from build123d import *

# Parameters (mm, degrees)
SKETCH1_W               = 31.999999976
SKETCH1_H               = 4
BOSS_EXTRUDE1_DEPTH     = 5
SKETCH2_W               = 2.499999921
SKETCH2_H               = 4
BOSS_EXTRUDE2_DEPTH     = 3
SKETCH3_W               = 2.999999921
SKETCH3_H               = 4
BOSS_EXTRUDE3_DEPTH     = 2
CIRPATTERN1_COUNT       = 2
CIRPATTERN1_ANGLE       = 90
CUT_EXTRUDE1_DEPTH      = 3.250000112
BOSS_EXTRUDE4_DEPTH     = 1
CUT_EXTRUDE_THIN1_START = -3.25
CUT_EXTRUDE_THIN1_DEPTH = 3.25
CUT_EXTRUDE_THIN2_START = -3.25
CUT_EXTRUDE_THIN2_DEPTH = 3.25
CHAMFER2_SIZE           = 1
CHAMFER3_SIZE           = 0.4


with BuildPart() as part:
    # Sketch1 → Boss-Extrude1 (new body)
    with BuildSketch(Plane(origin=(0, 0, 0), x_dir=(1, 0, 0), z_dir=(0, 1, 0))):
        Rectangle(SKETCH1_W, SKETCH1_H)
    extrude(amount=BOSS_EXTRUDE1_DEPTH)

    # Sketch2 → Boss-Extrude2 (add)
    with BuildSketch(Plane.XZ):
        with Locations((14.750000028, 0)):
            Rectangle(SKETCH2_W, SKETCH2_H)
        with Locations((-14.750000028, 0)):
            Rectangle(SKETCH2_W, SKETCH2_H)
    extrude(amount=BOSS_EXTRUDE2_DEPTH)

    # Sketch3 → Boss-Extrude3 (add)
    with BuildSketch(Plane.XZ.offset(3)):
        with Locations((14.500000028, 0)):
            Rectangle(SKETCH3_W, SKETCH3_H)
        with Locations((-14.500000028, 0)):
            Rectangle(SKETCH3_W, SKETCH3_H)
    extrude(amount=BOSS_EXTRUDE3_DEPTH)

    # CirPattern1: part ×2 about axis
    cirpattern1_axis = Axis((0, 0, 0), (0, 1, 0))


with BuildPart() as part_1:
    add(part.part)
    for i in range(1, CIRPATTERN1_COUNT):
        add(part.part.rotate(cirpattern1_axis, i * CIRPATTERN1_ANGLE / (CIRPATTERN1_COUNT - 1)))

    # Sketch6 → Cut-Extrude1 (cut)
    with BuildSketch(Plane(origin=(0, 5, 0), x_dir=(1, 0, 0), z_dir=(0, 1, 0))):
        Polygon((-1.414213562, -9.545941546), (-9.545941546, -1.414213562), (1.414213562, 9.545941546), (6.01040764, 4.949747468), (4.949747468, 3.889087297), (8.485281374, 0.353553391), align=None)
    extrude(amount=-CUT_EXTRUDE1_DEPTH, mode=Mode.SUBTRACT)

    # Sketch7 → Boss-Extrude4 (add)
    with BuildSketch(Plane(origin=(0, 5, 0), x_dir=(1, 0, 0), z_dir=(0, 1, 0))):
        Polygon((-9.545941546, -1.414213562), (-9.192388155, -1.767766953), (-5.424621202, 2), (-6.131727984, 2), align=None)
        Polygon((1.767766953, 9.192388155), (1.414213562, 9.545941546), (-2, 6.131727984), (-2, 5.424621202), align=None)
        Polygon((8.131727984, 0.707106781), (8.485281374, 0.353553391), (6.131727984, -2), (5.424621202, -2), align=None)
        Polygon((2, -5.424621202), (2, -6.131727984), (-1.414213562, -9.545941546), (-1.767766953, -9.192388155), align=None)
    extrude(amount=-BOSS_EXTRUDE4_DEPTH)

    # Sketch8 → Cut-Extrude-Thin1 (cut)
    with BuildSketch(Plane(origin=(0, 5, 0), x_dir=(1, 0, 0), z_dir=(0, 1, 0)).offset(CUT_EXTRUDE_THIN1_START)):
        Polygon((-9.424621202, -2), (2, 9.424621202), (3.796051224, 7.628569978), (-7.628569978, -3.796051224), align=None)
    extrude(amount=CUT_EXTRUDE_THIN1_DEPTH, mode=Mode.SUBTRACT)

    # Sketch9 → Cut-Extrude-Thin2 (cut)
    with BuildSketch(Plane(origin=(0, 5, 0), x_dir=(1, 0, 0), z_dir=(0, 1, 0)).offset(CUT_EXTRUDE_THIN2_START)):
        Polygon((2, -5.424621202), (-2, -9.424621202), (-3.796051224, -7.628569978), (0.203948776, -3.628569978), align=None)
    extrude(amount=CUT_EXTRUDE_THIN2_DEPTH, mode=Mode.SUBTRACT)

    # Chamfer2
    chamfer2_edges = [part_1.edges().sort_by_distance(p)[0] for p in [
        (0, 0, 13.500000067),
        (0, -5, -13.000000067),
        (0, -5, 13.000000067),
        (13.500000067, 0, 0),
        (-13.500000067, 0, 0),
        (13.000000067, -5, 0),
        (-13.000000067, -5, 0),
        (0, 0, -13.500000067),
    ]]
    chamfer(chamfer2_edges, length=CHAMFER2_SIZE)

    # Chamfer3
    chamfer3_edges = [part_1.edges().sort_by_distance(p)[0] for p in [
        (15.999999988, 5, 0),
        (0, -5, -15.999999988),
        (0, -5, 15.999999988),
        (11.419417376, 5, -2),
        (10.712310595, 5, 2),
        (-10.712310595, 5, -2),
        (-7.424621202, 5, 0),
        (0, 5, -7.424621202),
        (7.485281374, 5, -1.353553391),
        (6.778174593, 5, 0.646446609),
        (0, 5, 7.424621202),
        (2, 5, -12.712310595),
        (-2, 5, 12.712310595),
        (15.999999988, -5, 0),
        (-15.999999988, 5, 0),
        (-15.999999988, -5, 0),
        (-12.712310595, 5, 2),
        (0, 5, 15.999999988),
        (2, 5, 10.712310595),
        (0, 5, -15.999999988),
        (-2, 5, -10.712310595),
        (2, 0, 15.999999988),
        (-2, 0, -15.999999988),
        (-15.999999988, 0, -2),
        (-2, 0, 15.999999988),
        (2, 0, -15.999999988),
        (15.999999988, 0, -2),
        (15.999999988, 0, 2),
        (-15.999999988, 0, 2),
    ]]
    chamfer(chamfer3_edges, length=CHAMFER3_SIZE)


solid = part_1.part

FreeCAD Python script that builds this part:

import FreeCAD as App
import Part
import Sketcher
from FreeCAD import Vector
Q = App.Units.Quantity


def edges_at(feature, points):
    """Names of the edges that pass closest to the given points."""
    edges = feature.Shape.Edges
    near = lambda p: min(range(len(edges)), key=lambda i: edges[i].distToShape(Part.Vertex(*p))[0])
    return sorted({f"Edge{near(p) + 1}" for p in points})

doc = App.newDocument("Part")
body = doc.addObject("PartDesign::Body", "Body")

# Sketch on XZ plane
sketch1 = body.newObject("Sketcher::SketchObject", "Sketch")
sketch1.AttachmentSupport = (doc.getObject("XZ_Plane"), [""])
sketch1.MapMode = "FlatFace"
sketch1.addGeometry(Part.LineSegment(Vector(-16, -2, 0), Vector(-16, 2, 0)), False)
sketch1.addGeometry(Part.LineSegment(Vector(-16, 2, 0), Vector(16, 2, 0)), False)
sketch1.addGeometry(Part.LineSegment(Vector(16, 2, 0), Vector(16, -2, 0)), False)
sketch1.addGeometry(Part.LineSegment(Vector(16, -2, 0), Vector(-16, -2, 0)), False)
sketch1.addConstraint(Sketcher.Constraint("Coincident", 0, 2, 1, 1))
sketch1.addConstraint(Sketcher.Constraint("Coincident", 1, 2, 2, 1))
sketch1.addConstraint(Sketcher.Constraint("Coincident", 2, 2, 3, 1))
sketch1.addConstraint(Sketcher.Constraint("Coincident", 3, 2, 0, 1))
sketch1.addConstraint(Sketcher.Constraint("Vertical", 0))
sketch1.addConstraint(Sketcher.Constraint("Horizontal", 1))
sketch1.addConstraint(Sketcher.Constraint("Vertical", 2))
sketch1.addConstraint(Sketcher.Constraint("Horizontal", 3))
sketch1.addConstraint(Sketcher.Constraint("Symmetric", 0, 2, 2, 2, -1, 1))
sketch1.addConstraint(Sketcher.Constraint("DistanceX", 1, 1, 1, 2, Q("32 mm")))
sketch1.addConstraint(Sketcher.Constraint("DistanceY", 0, 1, 0, 2, Q("4 mm")))
pad1 = body.newObject("PartDesign::Pad", "Pad")
pad1.Profile = sketch1
pad1.Length = 5
pad1.Reversed = True

# Sketch on XZ plane
sketch2 = body.newObject("Sketcher::SketchObject", "Sketch001")
sketch2.AttachmentSupport = (doc.getObject("XZ_Plane"), [""])
sketch2.MapMode = "FlatFace"
sketch2.addGeometry(Part.LineSegment(Vector(13.5, 2, 0), Vector(13.5, -2, 0)), False)
sketch2.addGeometry(Part.LineSegment(Vector(13.5, -2, 0), Vector(16, -2, 0)), False)
sketch2.addGeometry(Part.LineSegment(Vector(16, -2, 0), Vector(16, 2, 0)), False)
sketch2.addGeometry(Part.LineSegment(Vector(16, 2, 0), Vector(13.5, 2, 0)), False)
sketch2.addGeometry(Part.LineSegment(Vector(-16, 2, 0), Vector(-16, -2, 0)), False)
sketch2.addGeometry(Part.LineSegment(Vector(-16, -2, 0), Vector(-13.5, -2, 0)), False)
sketch2.addGeometry(Part.LineSegment(Vector(-13.5, -2, 0), Vector(-13.5, 2, 0)), False)
sketch2.addGeometry(Part.LineSegment(Vector(-13.5, 2, 0), Vector(-16, 2, 0)), False)
sketch2.addConstraint(Sketcher.Constraint("Coincident", 0, 2, 1, 1))
sketch2.addConstraint(Sketcher.Constraint("Coincident", 1, 2, 2, 1))
sketch2.addConstraint(Sketcher.Constraint("Coincident", 2, 2, 3, 1))
sketch2.addConstraint(Sketcher.Constraint("Coincident", 3, 2, 0, 1))
sketch2.addConstraint(Sketcher.Constraint("Coincident", 4, 2, 5, 1))
sketch2.addConstraint(Sketcher.Constraint("Coincident", 5, 2, 6, 1))
sketch2.addConstraint(Sketcher.Constraint("Coincident", 6, 2, 7, 1))
sketch2.addConstraint(Sketcher.Constraint("Coincident", 7, 2, 4, 1))
sketch2.addConstraint(Sketcher.Constraint("Vertical", 0))
sketch2.addConstraint(Sketcher.Constraint("Horizontal", 1))
sketch2.addConstraint(Sketcher.Constraint("Vertical", 2))
sketch2.addConstraint(Sketcher.Constraint("Horizontal", 3))
sketch2.addConstraint(Sketcher.Constraint("Vertical", 4))
sketch2.addConstraint(Sketcher.Constraint("Horizontal", 5))
sketch2.addConstraint(Sketcher.Constraint("Vertical", 6))
sketch2.addConstraint(Sketcher.Constraint("Horizontal", 7))
sketch2.addConstraint(Sketcher.Constraint("Symmetric", 2, 2, 4, 2, -1, 1))
sketch2.addConstraint(Sketcher.Constraint("Symmetric", 0, 2, 6, 2, -1, 1))
sketch2.addConstraint(Sketcher.Constraint("Horizontal", 1, 2, 4, 2))
sketch2.addConstraint(Sketcher.Constraint("DistanceY", 0, 2, 0, 1, Q("4 mm")))
sketch2.addConstraint(Sketcher.Constraint("DistanceX", 1, 1, 1, 2, Q("2.5 mm")))
sketch2.addConstraint(Sketcher.Constraint("DistanceX", -1, 1, 1, 2, Q("16 mm")))
pad2 = body.newObject("PartDesign::Pad", "Pad001")
pad2.Profile = sketch2
pad2.Length = 3

# Sketch on XZ plane
sketch3 = body.newObject("Sketcher::SketchObject", "Sketch002")
sketch3.AttachmentSupport = (doc.getObject("XZ_Plane"), [""])
sketch3.MapMode = "FlatFace"
sketch3.AttachmentOffset = App.Placement(Vector(0, 0, 3), App.Rotation())
sketch3.addGeometry(Part.LineSegment(Vector(13, 2, 0), Vector(13, -2, 0)), False)
sketch3.addGeometry(Part.LineSegment(Vector(13, -2, 0), Vector(16, -2, 0)), False)
sketch3.addGeometry(Part.LineSegment(Vector(16, -2, 0), Vector(16, 2, 0)), False)
sketch3.addGeometry(Part.LineSegment(Vector(16, 2, 0), Vector(13, 2, 0)), False)
sketch3.addGeometry(Part.LineSegment(Vector(-16, 2, 0), Vector(-16, -2, 0)), False)
sketch3.addGeometry(Part.LineSegment(Vector(-16, -2, 0), Vector(-13, -2, 0)), False)
sketch3.addGeometry(Part.LineSegment(Vector(-13, -2, 0), Vector(-13, 2, 0)), False)
sketch3.addGeometry(Part.LineSegment(Vector(-13, 2, 0), Vector(-16, 2, 0)), False)
sketch3.addConstraint(Sketcher.Constraint("Coincident", 0, 2, 1, 1))
sketch3.addConstraint(Sketcher.Constraint("Coincident", 1, 2, 2, 1))
sketch3.addConstraint(Sketcher.Constraint("Coincident", 2, 2, 3, 1))
sketch3.addConstraint(Sketcher.Constraint("Coincident", 3, 2, 0, 1))
sketch3.addConstraint(Sketcher.Constraint("Coincident", 4, 2, 5, 1))
sketch3.addConstraint(Sketcher.Constraint("Coincident", 5, 2, 6, 1))
sketch3.addConstraint(Sketcher.Constraint("Coincident", 6, 2, 7, 1))
sketch3.addConstraint(Sketcher.Constraint("Coincident", 7, 2, 4, 1))
sketch3.addConstraint(Sketcher.Constraint("Vertical", 0))
sketch3.addConstraint(Sketcher.Constraint("Horizontal", 1))
sketch3.addConstraint(Sketcher.Constraint("Vertical", 2))
sketch3.addConstraint(Sketcher.Constraint("Horizontal", 3))
sketch3.addConstraint(Sketcher.Constraint("Vertical", 4))
sketch3.addConstraint(Sketcher.Constraint("Horizontal", 5))
sketch3.addConstraint(Sketcher.Constraint("Vertical", 6))
sketch3.addConstraint(Sketcher.Constraint("Horizontal", 7))
sketch3.addConstraint(Sketcher.Constraint("Symmetric", 2, 2, 4, 2, -1, 1))
sketch3.addConstraint(Sketcher.Constraint("Symmetric", 0, 2, 6, 2, -1, 1))
sketch3.addConstraint(Sketcher.Constraint("Horizontal", 1, 2, 4, 2))
sketch3.addConstraint(Sketcher.Constraint("DistanceX", 1, 1, 1, 2, Q("3 mm")))
sketch3.addConstraint(Sketcher.Constraint("DistanceY", 0, 2, 0, 1, Q("4 mm")))
sketch3.addConstraint(Sketcher.Constraint("DistanceX", -1, 1, 0, 2, Q("13 mm")))
pad3 = body.newObject("PartDesign::Pad", "Pad002")
pad3.Profile = sketch3
pad3.Length = 2
body2 = doc.addObject("PartDesign::Body", "Body001")
doc.recompute()

body2.BaseFeature = body
doc.recompute()

body.Placement = App.Placement(Vector(0, 0, 0), App.Rotation(Vector(0, 1, 0), 90))
boolean = body2.newObject("PartDesign::Boolean", "Boolean")
boolean.Type = "Fuse"
boolean.addObjects([body])

# Sketch on XZ plane
sketch4 = body2.newObject("Sketcher::SketchObject", "Sketch003")
sketch4.AttachmentSupport = (doc.getObject("XZ_Plane001"), [""])
sketch4.MapMode = "FlatFace"
sketch4.AttachmentOffset = App.Placement(Vector(0, 0, -5), App.Rotation())
sketch4.addGeometry(Part.LineSegment(Vector(-9.5, 1.4, 0), Vector(-1.4, 9.5, 0)), False)
sketch4.addGeometry(Part.LineSegment(Vector(-1.4, 9.5, 0), Vector(8.5, -0.4, 0)), False)
sketch4.addGeometry(Part.LineSegment(Vector(8.5, -0.4, 0), Vector(4.9, -3.9, 0)), False)
sketch4.addGeometry(Part.LineSegment(Vector(4.9, -3.9, 0), Vector(6, -4.9, 0)), False)
sketch4.addGeometry(Part.LineSegment(Vector(6, -4.9, 0), Vector(1.4, -9.5, 0)), False)
sketch4.addGeometry(Part.LineSegment(Vector(1.4, -9.5, 0), Vector(-9.5, 1.4, 0)), False)
sketch4.addConstraint(Sketcher.Constraint("Coincident", 0, 2, 1, 1))
sketch4.addConstraint(Sketcher.Constraint("Coincident", 1, 2, 2, 1))
sketch4.addConstraint(Sketcher.Constraint("Coincident", 2, 2, 3, 1))
sketch4.addConstraint(Sketcher.Constraint("Coincident", 3, 2, 4, 1))
sketch4.addConstraint(Sketcher.Constraint("Coincident", 4, 2, 5, 1))
sketch4.addConstraint(Sketcher.Constraint("Coincident", 5, 2, 0, 1))
sketch4.addConstraint(Sketcher.Constraint("Symmetric", 0, 2, 4, 2, -1, 1))
sketch4.addConstraint(Sketcher.Constraint("Perpendicular", 0, 1))
sketch4.addConstraint(Sketcher.Constraint("Perpendicular", 1, 2))
sketch4.addConstraint(Sketcher.Constraint("Perpendicular", 2, 3))
sketch4.addConstraint(Sketcher.Constraint("Perpendicular", 3, 4))
sketch4.addConstraint(Sketcher.Constraint("Perpendicular", 4, 5))
sketch4.addConstraint(Sketcher.Constraint("Angle", 0, Q("45 deg")))
sketch4.addConstraint(Sketcher.Constraint("Distance", 1, Q("14 mm")))
sketch4.addConstraint(Sketcher.Constraint("Distance", 2, Q("5 mm")))
sketch4.addConstraint(Sketcher.Constraint("Distance", 0, Q("11.5 mm")))
sketch4.addConstraint(Sketcher.Constraint("Distance", 3, Q("1.5 mm")))
pocket1 = body2.newObject("PartDesign::Pocket", "Pocket")
pocket1.Profile = sketch4
pocket1.Length = 3.25
pocket1.Reversed = True

# Sketch on XZ plane
sketch5 = body2.newObject("Sketcher::SketchObject", "Sketch004")
sketch5.AttachmentSupport = (doc.getObject("XZ_Plane001"), [""])
sketch5.MapMode = "FlatFace"
sketch5.AttachmentOffset = App.Placement(Vector(0, 0, -5), App.Rotation())
sketch5.addGeometry(Part.LineSegment(Vector(-9.55, 1.41, 0), Vector(-9.19, 1.77, 0)), False)
sketch5.addGeometry(Part.LineSegment(Vector(-9.19, 1.77, 0), Vector(-5.42, -2, 0)), False)
sketch5.addGeometry(Part.LineSegment(Vector(-5.42, -2, 0), Vector(-6.13, -2, 0)), False)
sketch5.addGeometry(Part.LineSegment(Vector(-6.13, -2, 0), Vector(-9.55, 1.41, 0)), False)
sketch5.addGeometry(Part.LineSegment(Vector(1.77, -9.19, 0), Vector(1.41, -9.55, 0)), False)
sketch5.addGeometry(Part.LineSegment(Vector(1.41, -9.55, 0), Vector(-2, -6.13, 0)), False)
sketch5.addGeometry(Part.LineSegment(Vector(-2, -6.13, 0), Vector(-2, -5.42, 0)), False)
sketch5.addGeometry(Part.LineSegment(Vector(-2, -5.42, 0), Vector(1.77, -9.19, 0)), False)
sketch5.addGeometry(Part.LineSegment(Vector(8.49, -0.35, 0), Vector(8.13, -0.71, 0)), False)
sketch5.addGeometry(Part.LineSegment(Vector(8.13, -0.71, 0), Vector(5.42, 2, 0)), False)
sketch5.addGeometry(Part.LineSegment(Vector(5.42, 2, 0), Vector(6.13, 2, 0)), False)
sketch5.addGeometry(Part.LineSegment(Vector(6.13, 2, 0), Vector(8.49, -0.35, 0)), False)
sketch5.addGeometry(Part.LineSegment(Vector(2, 6.13, 0), Vector(2, 5.42, 0)), False)
sketch5.addGeometry(Part.LineSegment(Vector(2, 5.42, 0), Vector(-1.77, 9.19, 0)), False)
sketch5.addGeometry(Part.LineSegment(Vector(-1.77, 9.19, 0), Vector(-1.41, 9.55, 0)), False)
sketch5.addGeometry(Part.LineSegment(Vector(-1.41, 9.55, 0), Vector(2, 6.13, 0)), False)
sketch5.addConstraint(Sketcher.Constraint("Coincident", 0, 2, 1, 1))
sketch5.addConstraint(Sketcher.Constraint("Coincident", 1, 2, 2, 1))
sketch5.addConstraint(Sketcher.Constraint("Coincident", 2, 2, 3, 1))
sketch5.addConstraint(Sketcher.Constraint("Coincident", 3, 2, 0, 1))
sketch5.addConstraint(Sketcher.Constraint("Coincident", 4, 2, 5, 1))
sketch5.addConstraint(Sketcher.Constraint("Coincident", 5, 2, 6, 1))
sketch5.addConstraint(Sketcher.Constraint("Coincident", 6, 2, 7, 1))
sketch5.addConstraint(Sketcher.Constraint("Coincident", 7, 2, 4, 1))
sketch5.addConstraint(Sketcher.Constraint("Coincident", 8, 2, 9, 1))
sketch5.addConstraint(Sketcher.Constraint("Coincident", 9, 2, 10, 1))
sketch5.addConstraint(Sketcher.Constraint("Coincident", 10, 2, 11, 1))
sketch5.addConstraint(Sketcher.Constraint("Coincident", 11, 2, 8, 1))
sketch5.addConstraint(Sketcher.Constraint("Coincident", 12, 2, 13, 1))
sketch5.addConstraint(Sketcher.Constraint("Coincident", 13, 2, 14, 1))
sketch5.addConstraint(Sketcher.Constraint("Coincident", 14, 2, 15, 1))
sketch5.addConstraint(Sketcher.Constraint("Coincident", 15, 2, 12, 1))
sketch5.addConstraint(Sketcher.Constraint("Horizontal", 2))
sketch5.addConstraint(Sketcher.Constraint("Vertical", 6))
sketch5.addConstraint(Sketcher.Constraint("Horizontal", 10))
sketch5.addConstraint(Sketcher.Constraint("Vertical", 12))
sketch5.addConstraint(Sketcher.Constraint("Symmetric", 1, 2, 9, 2, -1, 1))
sketch5.addConstraint(Sketcher.Constraint("Symmetric", 6, 2, 12, 2, -1, 1))
sketch5.addConstraint(Sketcher.Constraint("Symmetric", 7, 2, 13, 2, -1, 1))
sketch5.addConstraint(Sketcher.Constraint("Symmetric", 4, 2, 14, 2, -1, 1))
sketch5.addConstraint(Sketcher.Constraint("Perpendicular", 0, 1))
sketch5.addConstraint(Sketcher.Constraint("Parallel", 1, 3))
sketch5.addConstraint(Sketcher.Constraint("Perpendicular", 3, 4))
sketch5.addConstraint(Sketcher.Constraint("Perpendicular", 4, 5))
sketch5.addConstraint(Sketcher.Constraint("Parallel", 5, 7))
sketch5.addConstraint(Sketcher.Constraint("Perpendicular", 7, 8))
sketch5.addConstraint(Sketcher.Constraint("Perpendicular", 8, 9))
sketch5.addConstraint(Sketcher.Constraint("Parallel", 9, 11))
sketch5.addConstraint(Sketcher.Constraint("Perpendicular", 14, 15))
sketch5.addConstraint(Sketcher.Constraint("Equal", 2, 10))
sketch5.addConstraint(Sketcher.Constraint("Equal", 10, 6))
sketch5.addConstraint(Sketcher.Constraint("Equal", 0, 4))
sketch5.addConstraint(Sketcher.Constraint("Equal", 3, 5))
sketch5.addConstraint(Sketcher.Constraint("DistanceY", 1, 2, -1, 1, Q("2 mm")))
sketch5.addConstraint(Sketcher.Constraint("DistanceX", 5, 2, -1, 1, Q("2 mm")))
sketch5.addConstraint(Sketcher.Constraint("DistanceX", 10, 2, 8, 2, Q("2 mm")))
sketch5.addConstraint(Sketcher.Constraint("Distance", 0, Q("0.5 mm")))
sketch5.addConstraint(Sketcher.Constraint("DistanceX", 0, 2, 4, 2, Q("10.606602 mm")))
sketch5.addConstraint(Sketcher.Constraint("DistanceX", 0, 2, -1, 1, Q("9.192388 mm")))
sketch5.addConstraint(Sketcher.Constraint("DistanceY", 4, 2, -1, 1, Q("9.545942 mm")))
pad4 = body2.newObject("PartDesign::Pad", "Pad003")
pad4.Profile = sketch5
pad4.Length = 1

# Sketch on XZ plane
sketch6 = body2.newObject("Sketcher::SketchObject", "Sketch005")
sketch6.AttachmentSupport = (doc.getObject("XZ_Plane001"), [""])
sketch6.MapMode = "FlatFace"
sketch6.AttachmentOffset = App.Placement(Vector(0, 0, -1.75), App.Rotation())
sketch6.addGeometry(Part.LineSegment(Vector(2, -9.4, 0), Vector(-9.4, 2, 0)), False)
sketch6.addGeometry(Part.LineSegment(Vector(-9.4, 2, 0), Vector(-7.6, 3.8, 0)), False)
sketch6.addGeometry(Part.LineSegment(Vector(-7.6, 3.8, 0), Vector(3.8, -7.6, 0)), False)
sketch6.addGeometry(Part.LineSegment(Vector(3.8, -7.6, 0), Vector(2, -9.4, 0)), False)
sketch6.addConstraint(Sketcher.Constraint("Coincident", 0, 2, 1, 1))
sketch6.addConstraint(Sketcher.Constraint("Coincident", 1, 2, 2, 1))
sketch6.addConstraint(Sketcher.Constraint("Coincident", 2, 2, 3, 1))
sketch6.addConstraint(Sketcher.Constraint("Coincident", 3, 2, 0, 1))
sketch6.addConstraint(Sketcher.Constraint("Perpendicular", 0, 1))
sketch6.addConstraint(Sketcher.Constraint("Perpendicular", 1, 2))
sketch6.addConstraint(Sketcher.Constraint("Perpendicular", 2, 3))
sketch6.addConstraint(Sketcher.Constraint("Angle", 0, Q("135 deg")))
sketch6.addConstraint(Sketcher.Constraint("DistanceY", -1, 1, 0, 2, Q("2 mm")))
sketch6.addConstraint(Sketcher.Constraint("DistanceX", -1, 1, 3, 2, Q("2 mm")))
sketch6.addConstraint(Sketcher.Constraint("Distance", 1, Q("2.54 mm")))
sketch6.addConstraint(Sketcher.Constraint("DistanceX", 0, 2, -1, 1, Q("9.424621 mm")))
pocket2 = body2.newObject("PartDesign::Pocket", "Pocket001")
pocket2.Profile = sketch6
pocket2.Length = 3.25

# Sketch on XZ plane
sketch7 = body2.newObject("Sketcher::SketchObject", "Sketch006")
sketch7.AttachmentSupport = (doc.getObject("XZ_Plane001"), [""])
sketch7.MapMode = "FlatFace"
sketch7.AttachmentOffset = App.Placement(Vector(0, 0, -1.75), App.Rotation())
sketch7.addGeometry(Part.LineSegment(Vector(-2, 9.4, 0), Vector(2, 5.4, 0)), False)
sketch7.addGeometry(Part.LineSegment(Vector(2, 5.4, 0), Vector(0.2, 3.6, 0)), False)
sketch7.addGeometry(Part.LineSegment(Vector(0.2, 3.6, 0), Vector(-3.8, 7.6, 0)), False)
sketch7.addGeometry(Part.LineSegment(Vector(-3.8, 7.6, 0), Vector(-2, 9.4, 0)), False)
sketch7.addConstraint(Sketcher.Constraint("Coincident", 0, 2, 1, 1))
sketch7.addConstraint(Sketcher.Constraint("Coincident", 1, 2, 2, 1))
sketch7.addConstraint(Sketcher.Constraint("Coincident", 2, 2, 3, 1))
sketch7.addConstraint(Sketcher.Constraint("Coincident", 3, 2, 0, 1))
sketch7.addConstraint(Sketcher.Constraint("Perpendicular", 0, 1))
sketch7.addConstraint(Sketcher.Constraint("Perpendicular", 1, 2))
sketch7.addConstraint(Sketcher.Constraint("Perpendicular", 2, 3))
sketch7.addConstraint(Sketcher.Constraint("Angle", 0, Q("-45 deg")))
sketch7.addConstraint(Sketcher.Constraint("DistanceX", -1, 1, 0, 2, Q("2 mm")))
sketch7.addConstraint(Sketcher.Constraint("DistanceX", 3, 2, -1, 1, Q("2 mm")))
sketch7.addConstraint(Sketcher.Constraint("Distance", 1, Q("2.54 mm")))
sketch7.addConstraint(Sketcher.Constraint("DistanceY", -1, 1, 0, 2, Q("5.424621 mm")))
pocket3 = body2.newObject("PartDesign::Pocket", "Pocket002")
pocket3.Profile = sketch7
pocket3.Length = 3.25
doc.recompute()

chamfer = body2.newObject("PartDesign::Chamfer", "Chamfer")
chamfer.Base = (pocket3, edges_at(pocket3, [
    (0, 0, 13.5),
    (0, -5, -13),
    (0, -5, 13),
    (13.5, 0, 0),
    (-13.5, 0, 0),
    (13, -5, 0),
    (-13, -5, 0),
    (0, 0, -13.5),
]))
chamfer.Size = 1
doc.recompute()

chamfer2 = body2.newObject("PartDesign::Chamfer", "Chamfer001")
chamfer2.Base = (chamfer, edges_at(chamfer, [
    (16, 5, 0),
    (0, -5, -16),
    (0, -5, 16),
    (11.419, 5, -2),
    (10.712, 5, 2),
    (-10.712, 5, -2),
    (-7.425, 5, 0),
    (0, 5, -7.425),
    (7.485, 5, -1.354),
    (6.778, 5, 0.646),
    (0, 5, 7.425),
    (2, 5, -12.712),
    (-2, 5, 12.712),
    (16, -5, 0),
    (-16, 5, 0),
    (-16, -5, 0),
    (-12.712, 5, 2),
    (0, 5, 16),
    (2, 5, 10.712),
    (0, 5, -16),
    (-2, 5, -10.712),
    (2, 2.5, 16),
    (-2, -2.5, -16),
    (-16, -2.5, -2),
    (-2, -2.5, 16),
    (2, -2.5, -16),
    (16, -2.5, -2),
    (16, -2.5, 2),
    (-16, -2.5, 2),
]))
chamfer2.Size = 0.4

doc.recompute()
